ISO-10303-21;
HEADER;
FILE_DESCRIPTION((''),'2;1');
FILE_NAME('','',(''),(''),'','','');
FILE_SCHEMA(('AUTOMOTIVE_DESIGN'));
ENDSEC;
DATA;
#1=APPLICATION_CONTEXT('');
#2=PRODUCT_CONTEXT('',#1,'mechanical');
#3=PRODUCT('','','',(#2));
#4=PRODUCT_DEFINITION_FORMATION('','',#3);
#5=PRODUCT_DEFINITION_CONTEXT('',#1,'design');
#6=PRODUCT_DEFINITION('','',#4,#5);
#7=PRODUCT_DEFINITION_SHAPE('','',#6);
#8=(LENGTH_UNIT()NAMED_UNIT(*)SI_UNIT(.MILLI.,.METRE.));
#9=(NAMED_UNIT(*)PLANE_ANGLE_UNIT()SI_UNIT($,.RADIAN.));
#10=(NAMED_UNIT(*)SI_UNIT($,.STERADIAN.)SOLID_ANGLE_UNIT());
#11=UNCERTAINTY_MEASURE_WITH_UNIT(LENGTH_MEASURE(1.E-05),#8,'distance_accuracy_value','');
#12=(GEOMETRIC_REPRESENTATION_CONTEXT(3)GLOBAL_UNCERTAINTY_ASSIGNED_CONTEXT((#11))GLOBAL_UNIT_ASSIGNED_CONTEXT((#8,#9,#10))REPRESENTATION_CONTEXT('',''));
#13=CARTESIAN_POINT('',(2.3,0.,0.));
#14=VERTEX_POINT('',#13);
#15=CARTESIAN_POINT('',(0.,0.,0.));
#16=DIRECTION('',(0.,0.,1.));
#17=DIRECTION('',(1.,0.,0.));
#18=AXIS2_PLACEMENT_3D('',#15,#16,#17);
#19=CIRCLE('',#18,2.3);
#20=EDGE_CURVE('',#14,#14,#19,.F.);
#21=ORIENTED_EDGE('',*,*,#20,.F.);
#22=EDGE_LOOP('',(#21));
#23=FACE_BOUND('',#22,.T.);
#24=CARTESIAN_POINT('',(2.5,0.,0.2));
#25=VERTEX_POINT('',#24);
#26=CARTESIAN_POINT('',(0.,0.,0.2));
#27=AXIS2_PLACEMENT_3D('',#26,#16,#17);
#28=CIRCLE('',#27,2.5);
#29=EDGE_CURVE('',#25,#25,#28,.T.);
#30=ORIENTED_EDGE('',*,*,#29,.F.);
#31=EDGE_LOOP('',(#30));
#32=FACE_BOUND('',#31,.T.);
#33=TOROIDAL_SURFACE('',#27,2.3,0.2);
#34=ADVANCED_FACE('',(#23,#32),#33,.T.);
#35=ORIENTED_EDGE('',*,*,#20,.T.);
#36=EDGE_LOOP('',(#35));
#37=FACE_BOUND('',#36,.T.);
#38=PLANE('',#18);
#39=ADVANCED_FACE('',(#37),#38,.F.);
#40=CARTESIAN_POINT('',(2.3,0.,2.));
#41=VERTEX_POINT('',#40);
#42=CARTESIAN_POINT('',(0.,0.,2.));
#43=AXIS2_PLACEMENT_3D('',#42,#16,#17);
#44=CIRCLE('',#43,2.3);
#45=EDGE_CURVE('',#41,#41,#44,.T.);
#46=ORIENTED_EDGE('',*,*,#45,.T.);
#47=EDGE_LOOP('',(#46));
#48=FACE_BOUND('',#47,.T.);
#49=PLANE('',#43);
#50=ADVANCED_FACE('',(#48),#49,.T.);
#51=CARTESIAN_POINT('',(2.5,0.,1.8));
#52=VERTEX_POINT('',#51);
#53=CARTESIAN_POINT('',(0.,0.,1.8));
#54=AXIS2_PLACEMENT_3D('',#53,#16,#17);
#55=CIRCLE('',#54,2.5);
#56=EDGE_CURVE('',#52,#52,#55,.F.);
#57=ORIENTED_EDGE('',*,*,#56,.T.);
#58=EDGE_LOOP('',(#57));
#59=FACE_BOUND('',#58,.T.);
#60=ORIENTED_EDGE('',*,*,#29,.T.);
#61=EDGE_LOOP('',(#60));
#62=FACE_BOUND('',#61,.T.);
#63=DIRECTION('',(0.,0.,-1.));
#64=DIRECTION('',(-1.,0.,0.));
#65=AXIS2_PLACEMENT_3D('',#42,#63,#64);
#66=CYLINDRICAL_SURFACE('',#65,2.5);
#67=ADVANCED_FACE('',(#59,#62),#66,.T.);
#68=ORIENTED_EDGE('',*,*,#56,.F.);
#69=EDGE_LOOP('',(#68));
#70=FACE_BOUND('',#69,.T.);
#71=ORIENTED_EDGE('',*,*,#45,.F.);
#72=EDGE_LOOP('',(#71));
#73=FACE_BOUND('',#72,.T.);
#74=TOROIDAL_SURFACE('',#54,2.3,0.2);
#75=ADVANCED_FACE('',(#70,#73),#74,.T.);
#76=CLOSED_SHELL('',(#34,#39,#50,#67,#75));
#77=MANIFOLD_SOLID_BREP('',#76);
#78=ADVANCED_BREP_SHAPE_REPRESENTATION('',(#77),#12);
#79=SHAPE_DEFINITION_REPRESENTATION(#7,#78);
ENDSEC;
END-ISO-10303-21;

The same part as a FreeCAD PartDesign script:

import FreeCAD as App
import Part
import Sketcher
from FreeCAD import Vector
Q = App.Units.Quantity


def edges_at(feature, points):
    """Names of the edges that pass closest to the given points."""
    edges = feature.Shape.Edges
    near = lambda p: min(range(len(edges)), key=lambda i: edges[i].distToShape(Part.Vertex(*p))[0])
    return sorted({f"Edge{near(p) + 1}" for p in points})

doc = App.newDocument("Part")
params = doc.addObject("Spreadsheet::Sheet", "Params")
for row, (alias, value) in enumerate([
    ("sketch1_diameter", "5 mm"),
    ("pad1_length", "2 mm"),
    ("fillet_radius", "0.2 mm"),
], start=1):
    params.set(f"A{row}", alias)
    params.set(f"B{row}", "=" + value)
    params.setAlias(f"B{row}", alias)

body = doc.addObject("PartDesign::Body", "Body")

sketch1 = doc.addObject("Sketcher::SketchObject", "Sketch")
body.addObject(sketch1)
sketch1.AttachmentSupport = (doc.XY_Plane, [""])
sketch1.MapMode = "FlatFace"
sketch1.addGeometry(Part.Circle(Vector(0, 0, 0), Vector(0, 0, 1), 2.5), False)
sketch1.addConstraint([
    Sketcher.Constraint("Coincident", 0, 3, -1, 1),
    Sketcher.Constraint("Diameter", 0, Q("5 mm")),
])
sketch1.setExpression("Constraints[1]", "Params.sketch1_diameter")
pad1 = doc.addObject("PartDesign::Pad", "Pad")
body.addObject(pad1)
pad1.Profile = sketch1
pad1.setExpression("Length", "Params.pad1_length")
doc.recompute()

fillet = doc.addObject("PartDesign::Fillet", "Fillet")
body.addObject(fillet)
fillet.Base = (pad1, edges_at(pad1, [(-2.5, 0, 0), (-2.5, 0, 2)]))
fillet.setExpression("Radius", "Params.fillet_radius")

doc.recompute()
